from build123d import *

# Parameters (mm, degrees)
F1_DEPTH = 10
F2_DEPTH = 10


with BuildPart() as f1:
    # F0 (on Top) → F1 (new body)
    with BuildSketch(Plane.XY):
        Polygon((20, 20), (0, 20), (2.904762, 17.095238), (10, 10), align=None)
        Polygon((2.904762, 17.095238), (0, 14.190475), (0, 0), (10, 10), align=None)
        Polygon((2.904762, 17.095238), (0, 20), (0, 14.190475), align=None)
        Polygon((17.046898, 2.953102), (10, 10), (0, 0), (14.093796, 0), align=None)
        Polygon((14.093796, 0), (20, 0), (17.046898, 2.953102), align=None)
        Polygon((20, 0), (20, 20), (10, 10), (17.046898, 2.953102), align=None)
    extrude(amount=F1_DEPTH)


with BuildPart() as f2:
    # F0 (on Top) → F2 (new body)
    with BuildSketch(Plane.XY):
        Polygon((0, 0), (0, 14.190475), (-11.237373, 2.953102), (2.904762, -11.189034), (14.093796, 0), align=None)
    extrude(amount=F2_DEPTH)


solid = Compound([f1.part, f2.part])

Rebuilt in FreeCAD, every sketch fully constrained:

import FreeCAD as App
import Part
import Sketcher
from FreeCAD import Vector
Q = App.Units.Quantity

doc = App.newDocument("Part")
body = doc.addObject("PartDesign::Body", "Body")

# Sketch on XY plane
sketch1 = body.newObject("Sketcher::SketchObject", "Sketch")
sketch1.AttachmentSupport = (doc.getObject("XY_Plane"), [""])
sketch1.MapMode = "FlatFace"
sketch1.addGeometry([
    Part.LineSegment(Vector(20, 20, 0), Vector(0, 20, 0)),
    Part.LineSegment(Vector(0, 20, 0), Vector(0, 0, 0)),
    Part.LineSegment(Vector(0, 0, 0), Vector(20, 0, 0)),
    Part.LineSegment(Vector(20, 0, 0), Vector(20, 20, 0)),
], False)
sketch1.addConstraint([
    Sketcher.Constraint("Coincident", 0, 2, 1, 1),
    Sketcher.Constraint("Coincident", 1, 2, 2, 1),
    Sketcher.Constraint("Coincident", 2, 2, 3, 1),
    Sketcher.Constraint("Coincident", 3, 2, 0, 1),
    Sketcher.Constraint("Horizontal", 0),
    Sketcher.Constraint("Vertical", 1),
    Sketcher.Constraint("Horizontal", 2),
    Sketcher.Constraint("Vertical", 3),
    Sketcher.Constraint("Coincident", 1, 2, -1, 1),
    Sketcher.Constraint("Equal", 2, 1),
    Sketcher.Constraint("DistanceX", 0, 2, 0, 1, 20.0),
])
pad1 = body.newObject("PartDesign::Pad", "Pad")
pad1.Profile = sketch1
pad1.Length = 10
body2 = doc.addObject("PartDesign::Body", "Body001")

# Sketch on XY plane
sketch2 = body2.newObject("Sketcher::SketchObject", "Sketch001")
sketch2.AttachmentSupport = (doc.getObject("XY_Plane001"), [""])
sketch2.MapMode = "FlatFace"
sketch2.addGeometry([
    Part.LineSegment(Vector(0, 0, 0), Vector(0, 14.190475, 0)),  # 0
    Part.LineSegment(Vector(0, 14.190475, 0), Vector(-11.237373, 2.953102, 0)),  # 1
    Part.LineSegment(Vector(-11.237373, 2.953102, 0), Vector(2.904762, -11.189034, 0)),  # 2
    Part.LineSegment(Vector(2.904762, -11.189034, 0), Vector(14.093796, 0, 0)),  # 3
    Part.LineSegment(Vector(14.093796, 0, 0), Vector(0, 0, 0)),  # 4
], False)
sketch2.addConstraint([
    Sketcher.Constraint("Coincident", 0, 2, 1, 1),
    Sketcher.Constraint("Coincident", 1, 2, 2, 1),
    Sketcher.Constraint("Coincident", 2, 2, 3, 1),
    Sketcher.Constraint("Coincident", 3, 2, 4, 1),
    Sketcher.Constraint("Coincident", 4, 2, 0, 1),
    Sketcher.Constraint("Vertical", 0),
    Sketcher.Constraint("Horizontal", 4),
    Sketcher.Constraint("Coincident", 4, 2, -1, 1),
    Sketcher.Constraint("Perpendicular", 1, 2),
    Sketcher.Constraint("Perpendicular", 2, 3),
    Sketcher.Constraint("Angle", 1, Q("-135 deg")),
    Sketcher.Constraint("Distance", 2, 20.0),
    Sketcher.Constraint("DistanceY", -1, 1, 1, 2, 2.953102),
    Sketcher.Constraint("DistanceX", 4, 2, 4, 1, 14.093796),
])
pad2 = body2.newObject("PartDesign::Pad", "Pad001")
pad2.Profile = sketch2
pad2.Length = 10

doc.recompute()
